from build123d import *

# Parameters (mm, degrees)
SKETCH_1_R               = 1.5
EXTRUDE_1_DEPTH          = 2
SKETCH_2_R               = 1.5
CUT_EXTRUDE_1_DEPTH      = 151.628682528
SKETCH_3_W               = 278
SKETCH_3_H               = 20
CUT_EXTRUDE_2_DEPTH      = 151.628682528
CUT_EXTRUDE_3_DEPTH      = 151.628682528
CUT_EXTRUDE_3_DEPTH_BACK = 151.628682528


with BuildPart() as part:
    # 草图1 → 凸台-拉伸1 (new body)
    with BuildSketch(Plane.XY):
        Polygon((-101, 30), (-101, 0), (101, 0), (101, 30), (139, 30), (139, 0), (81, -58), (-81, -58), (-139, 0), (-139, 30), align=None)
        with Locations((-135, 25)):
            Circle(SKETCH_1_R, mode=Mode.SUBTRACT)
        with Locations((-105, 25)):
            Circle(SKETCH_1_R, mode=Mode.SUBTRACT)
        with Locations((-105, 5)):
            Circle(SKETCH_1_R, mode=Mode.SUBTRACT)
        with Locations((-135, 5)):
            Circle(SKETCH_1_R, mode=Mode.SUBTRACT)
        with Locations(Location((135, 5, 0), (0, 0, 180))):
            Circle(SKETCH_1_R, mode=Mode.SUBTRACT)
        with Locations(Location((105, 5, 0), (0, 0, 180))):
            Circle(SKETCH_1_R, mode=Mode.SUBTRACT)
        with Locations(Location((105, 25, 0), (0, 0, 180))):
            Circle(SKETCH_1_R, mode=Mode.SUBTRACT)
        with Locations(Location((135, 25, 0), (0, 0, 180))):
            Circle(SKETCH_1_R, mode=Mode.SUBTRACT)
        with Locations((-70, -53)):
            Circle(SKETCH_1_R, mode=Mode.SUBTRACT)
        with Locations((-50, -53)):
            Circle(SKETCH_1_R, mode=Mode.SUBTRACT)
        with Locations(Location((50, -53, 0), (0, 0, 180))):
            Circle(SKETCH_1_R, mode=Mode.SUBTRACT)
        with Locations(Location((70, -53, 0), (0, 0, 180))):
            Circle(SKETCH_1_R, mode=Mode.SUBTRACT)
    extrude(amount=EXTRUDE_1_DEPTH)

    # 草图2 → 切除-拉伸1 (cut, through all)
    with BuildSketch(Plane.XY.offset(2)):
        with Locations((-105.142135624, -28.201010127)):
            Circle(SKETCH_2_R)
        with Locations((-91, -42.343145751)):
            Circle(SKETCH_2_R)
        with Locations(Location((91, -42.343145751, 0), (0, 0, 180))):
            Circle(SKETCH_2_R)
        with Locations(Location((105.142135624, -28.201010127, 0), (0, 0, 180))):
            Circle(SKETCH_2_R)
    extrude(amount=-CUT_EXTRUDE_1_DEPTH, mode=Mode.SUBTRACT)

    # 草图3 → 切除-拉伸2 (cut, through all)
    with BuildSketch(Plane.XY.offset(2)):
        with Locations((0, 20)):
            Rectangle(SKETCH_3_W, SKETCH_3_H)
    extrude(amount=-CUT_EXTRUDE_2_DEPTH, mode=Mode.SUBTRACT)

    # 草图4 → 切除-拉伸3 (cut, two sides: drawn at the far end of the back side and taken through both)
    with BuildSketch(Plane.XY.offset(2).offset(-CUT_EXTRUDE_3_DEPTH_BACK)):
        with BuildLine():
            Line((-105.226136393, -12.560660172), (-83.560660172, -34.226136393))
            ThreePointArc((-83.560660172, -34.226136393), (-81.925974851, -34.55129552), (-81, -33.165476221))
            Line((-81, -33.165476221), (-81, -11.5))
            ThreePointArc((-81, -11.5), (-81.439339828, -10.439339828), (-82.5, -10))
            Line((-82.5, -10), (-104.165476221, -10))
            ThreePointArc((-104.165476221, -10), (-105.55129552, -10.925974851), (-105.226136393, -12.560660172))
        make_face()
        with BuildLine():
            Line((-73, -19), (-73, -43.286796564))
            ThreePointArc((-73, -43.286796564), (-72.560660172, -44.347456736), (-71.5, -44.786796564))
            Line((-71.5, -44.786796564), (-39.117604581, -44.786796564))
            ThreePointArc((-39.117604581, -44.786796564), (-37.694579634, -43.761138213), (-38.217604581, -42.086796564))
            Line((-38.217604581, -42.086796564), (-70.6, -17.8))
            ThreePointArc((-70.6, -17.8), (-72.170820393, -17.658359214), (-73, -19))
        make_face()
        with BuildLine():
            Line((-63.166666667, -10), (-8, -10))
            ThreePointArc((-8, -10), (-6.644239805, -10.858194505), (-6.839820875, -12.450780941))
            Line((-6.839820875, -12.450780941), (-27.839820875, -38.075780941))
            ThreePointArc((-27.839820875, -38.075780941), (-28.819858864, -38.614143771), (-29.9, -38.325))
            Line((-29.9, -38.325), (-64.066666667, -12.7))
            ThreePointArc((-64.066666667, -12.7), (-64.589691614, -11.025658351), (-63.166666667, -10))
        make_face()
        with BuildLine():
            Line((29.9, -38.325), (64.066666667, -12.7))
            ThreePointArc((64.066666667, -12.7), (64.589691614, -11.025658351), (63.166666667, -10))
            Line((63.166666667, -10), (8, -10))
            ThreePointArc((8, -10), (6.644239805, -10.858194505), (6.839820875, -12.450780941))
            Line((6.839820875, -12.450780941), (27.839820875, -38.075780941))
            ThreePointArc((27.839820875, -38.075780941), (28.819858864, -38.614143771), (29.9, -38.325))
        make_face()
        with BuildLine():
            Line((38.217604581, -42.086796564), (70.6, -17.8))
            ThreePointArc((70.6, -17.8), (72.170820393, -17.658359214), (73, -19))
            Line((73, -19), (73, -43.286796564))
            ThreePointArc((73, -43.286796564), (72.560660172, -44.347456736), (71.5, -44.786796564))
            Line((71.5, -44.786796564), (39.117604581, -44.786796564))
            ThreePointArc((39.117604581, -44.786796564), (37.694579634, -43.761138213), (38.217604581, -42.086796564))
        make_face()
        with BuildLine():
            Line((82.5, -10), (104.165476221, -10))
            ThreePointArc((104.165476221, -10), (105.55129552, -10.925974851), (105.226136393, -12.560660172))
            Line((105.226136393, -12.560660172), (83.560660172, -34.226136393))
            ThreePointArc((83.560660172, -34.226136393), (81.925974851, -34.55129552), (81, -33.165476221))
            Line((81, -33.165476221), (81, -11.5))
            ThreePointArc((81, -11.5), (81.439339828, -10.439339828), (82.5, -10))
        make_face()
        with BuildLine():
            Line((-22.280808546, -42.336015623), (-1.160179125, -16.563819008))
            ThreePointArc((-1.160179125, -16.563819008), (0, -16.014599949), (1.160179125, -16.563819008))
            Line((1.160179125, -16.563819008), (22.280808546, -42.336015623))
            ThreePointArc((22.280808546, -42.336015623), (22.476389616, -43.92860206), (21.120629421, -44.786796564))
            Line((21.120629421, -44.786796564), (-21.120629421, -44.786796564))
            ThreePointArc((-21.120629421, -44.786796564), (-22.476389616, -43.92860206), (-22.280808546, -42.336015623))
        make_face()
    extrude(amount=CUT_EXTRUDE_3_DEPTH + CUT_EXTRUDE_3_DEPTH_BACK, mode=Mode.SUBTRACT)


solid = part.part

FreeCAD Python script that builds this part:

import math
import FreeCAD as App
import Part
import Sketcher
from FreeCAD import Vector

doc = App.newDocument("Part")
body = doc.addObject("PartDesign::Body", "Body")

# Sketch on XY plane
sketch1 = body.newObject("Sketcher::SketchObject", "Sketch")
sketch1.AttachmentSupport = (doc.getObject("XY_Plane"), [""])
sketch1.MapMode = "FlatFace"
sketch1.addGeometry([
    Part.LineSegment(Vector(-101, 0, 0), Vector(-101, 30, 0)),  # 0
    Part.LineSegment(Vector(-101, 30, 0), Vector(-139, 30, 0)),  # 1
    Part.LineSegment(Vector(-139, 30, 0), Vector(-139, 0, 0)),  # 2
    Part.LineSegment(Vector(-139, 0, 0), Vector(-81, -58, 0)),  # 3
    Part.LineSegment(Vector(-81, -58, 0), Vector(81, -58, 0)),  # 4
    Part.LineSegment(Vector(81, -58, 0), Vector(139, 0, 0)),  # 5
    Part.LineSegment(Vector(139, 0, 0), Vector(139, 30, 0)),  # 6
    Part.LineSegment(Vector(139, 30, 0), Vector(101, 30, 0)),  # 7
    Part.LineSegment(Vector(101, 30, 0), Vector(101, 0, 0)),  # 8
    Part.LineSegment(Vector(101, 0, 0), Vector(-101, 0, 0)),  # 9
    Part.Circle(Vector(70, -53, 0), Vector(0, 0, 1), 1.5),  # 10
    Part.Circle(Vector(50, -53, 0), Vector(0, 0, 1), 1.5),  # 11
    Part.Circle(Vector(-50, -53, 0), Vector(0, 0, 1), 1.5),  # 12
    Part.Circle(Vector(-70, -53, 0), Vector(0, 0, 1), 1.5),  # 13
    Part.Circle(Vector(135, 5, 0), Vector(0, 0, 1), 1.5),  # 14
    Part.Circle(Vector(105, 5, 0), Vector(0, 0, 1), 1.5),  # 15
    Part.Circle(Vector(135, 25, 0), Vector(0, 0, 1), 1.5),  # 16
    Part.Circle(Vector(105, 25, 0), Vector(0, 0, 1), 1.5),  # 17
    Part.Circle(Vector(-105, 5, 0), Vector(0, 0, 1), 1.5),  # 18
    Part.Circle(Vector(-135, 5, 0), Vector(0, 0, 1), 1.5),  # 19
    Part.Circle(Vector(-105, 25, 0), Vector(0, 0, 1), 1.5),  # 20
    Part.Circle(Vector(-135, 25, 0), Vector(0, 0, 1), 1.5),  # 21
], False)
sketch1.addConstraint([
    Sketcher.Constraint("Coincident", 0, 2, 1, 1),
    Sketcher.Constraint("Coincident", 1, 2, 2, 1),
    Sketcher.Constraint("Coincident", 2, 2, 3, 1),
    Sketcher.Constraint("Coincident", 3, 2, 4, 1),
    Sketcher.Constraint("Coincident", 4, 2, 5, 1),
    Sketcher.Constraint("Coincident", 5, 2, 6, 1),
    Sketcher.Constraint("Coincident", 6, 2, 7, 1),
    Sketcher.Constraint("Coincident", 7, 2, 8, 1),
    Sketcher.Constraint("Coincident", 8, 2, 9, 1),
    Sketcher.Constraint("Coincident", 9, 2, 0, 1),
    Sketcher.Constraint("Vertical", 0),
    Sketcher.Constraint("Horizontal", 1),
    Sketcher.Constraint("Vertical", 2),
    Sketcher.Constraint("Horizontal", 4),
    Sketcher.Constraint("Vertical", 6),
    Sketcher.Constraint("Horizontal", 7),
    Sketcher.Constraint("Vertical", 8),
    Sketcher.Constraint("Horizontal", 9),
    Sketcher.Constraint("Equal", 10, 11),
    Sketcher.Constraint("Equal", 11, 12),
    Sketcher.Constraint("Equal", 12, 13),
    Sketcher.Constraint("Equal", 13, 14),
    Sketcher.Constraint("Equal", 14, 15),
    Sketcher.Constraint("Equal", 15, 16),
    Sketcher.Constraint("Equal", 16, 17),
    Sketcher.Constraint("Equal", 17, 18),
    Sketcher.Constraint("Equal", 18, 19),
    Sketcher.Constraint("Equal", 19, 20),
    Sketcher.Constraint("Equal", 20, 21),
    Sketcher.Constraint("Symmetric", 2, 2, 5, 2, -1, 1),
    Sketcher.Constraint("Symmetric", 8, 2, 9, 2, -1, 1),
    Sketcher.Constraint("Symmetric", 11, 3, 12, 3, -2),
    Sketcher.Constraint("Symmetric", 10, 3, 13, 3, -2),
    Sketcher.Constraint("Symmetric", 15, 3, 18, 3, -2),
    Sketcher.Constraint("Symmetric", 14, 3, 19, 3, -2),
    Sketcher.Constraint("Symmetric", 17, 3, 20, 3, -2),
    Sketcher.Constraint("Symmetric", 16, 3, 21, 3, -2),
    Sketcher.Constraint("PointOnObject", 2, 2, -1),
    Sketcher.Constraint("Perpendicular", 3, 5),
    Sketcher.Constraint("Horizontal", 10, 3, 11, 3),
    Sketcher.Constraint("Horizontal", 14, 3, 15, 3),
    Sketcher.Constraint("Horizontal", 16, 3, 17, 3),
    Sketcher.Constraint("Horizontal", 1, 2, 6, 2),
    Sketcher.Constraint("Vertical", 14, 3, 16, 3),
    Sketcher.Constraint("Vertical", 15, 3, 17, 3),
    Sketcher.Constraint("Equal", 3, 5),
    Sketcher.Constraint("Diameter", 10, 3.0),
    Sketcher.Constraint("DistanceX", 1, 2, 1, 1, 38.0),
    Sketcher.Constraint("DistanceX", 4, 1, 4, 2, 162.0),
    Sketcher.Constraint("DistanceX", 9, 2, 9, 1, 202.0),
    Sketcher.Constraint("DistanceY", 0, 1, 0, 2, 30.0),
    Sketcher.Constraint("DistanceX", -1, 1, 10, 3, 70.0),
    Sketcher.Constraint("DistanceY", 10, 3, -1, 1, 53.0),
    Sketcher.Constraint("DistanceX", -1, 1, 11, 3, 50.0),
    Sketcher.Constraint("DistanceX", -1, 1, 14, 3, 135.0),
    Sketcher.Constraint("DistanceY", -1, 1, 14, 3, 5.0),
    Sketcher.Constraint("DistanceX", -1, 1, 15, 3, 105.0),
    Sketcher.Constraint("DistanceY", -1, 1, 16, 3, 25.0),
])
pad1 = body.newObject("PartDesign::Pad", "Pad")
pad1.Profile = sketch1
pad1.Length = 2

# Sketch on XY plane
sketch2 = body.newObject("Sketcher::SketchObject", "Sketch001")
sketch2.AttachmentSupport = (doc.getObject("XY_Plane"), [""])
sketch2.MapMode = "FlatFace"
sketch2.AttachmentOffset = App.Placement(Vector(0, 0, 2), App.Rotation())
sketch2.addGeometry([
    Part.Circle(Vector(-105.1, -28.2, 0), Vector(0, 0, 1), 1.5),
    Part.Circle(Vector(-91, -42.3, 0), Vector(0, 0, 1), 1.5),
    Part.Circle(Vector(91, -42.3, 0), Vector(0, 0, 1), 1.5),
    Part.Circle(Vector(105.1, -28.2, 0), Vector(0, 0, 1), 1.5),
], False)
sketch2.addConstraint([
    Sketcher.Constraint("Equal", 0, 1),
    Sketcher.Constraint("Equal", 1, 2),
    Sketcher.Constraint("Equal", 2, 3),
    Sketcher.Constraint("Symmetric", 1, 3, 2, 3, -2),
    Sketcher.Constraint("Symmetric", 0, 3, 3, 3, -2),
    Sketcher.Constraint("Diameter", 0, 3.0),
    Sketcher.Constraint("DistanceX", 1, 3, -1, 1, 91.0),
    Sketcher.Constraint("DistanceY", 0, 3, -1, 1, 28.20101),
    Sketcher.Constraint("DistanceX", 0, 3, 3, 3, 210.284271),
    Sketcher.Constraint("DistanceY", 1, 3, -1, 1, 42.343146),
])
pocket1 = body.newObject("PartDesign::Pocket", "Pocket")
pocket1.Profile = sketch2
pocket1.Type = "ThroughAll"

# Sketch on XY plane
sketch3 = body.newObject("Sketcher::SketchObject", "Sketch002")
sketch3.AttachmentSupport = (doc.getObject("XY_Plane"), [""])
sketch3.MapMode = "FlatFace"
sketch3.AttachmentOffset = App.Placement(Vector(0, 0, 2), App.Rotation())
sketch3.addGeometry([
    Part.LineSegment(Vector(-139, 30, 0), Vector(-139, 10, 0)),
    Part.LineSegment(Vector(-139, 10, 0), Vector(139, 10, 0)),
    Part.LineSegment(Vector(139, 10, 0), Vector(139, 30, 0)),
    Part.LineSegment(Vector(139, 30, 0), Vector(-139, 30, 0)),
], False)
sketch3.addConstraint([
    Sketcher.Constraint("Coincident", 0, 2, 1, 1),
    Sketcher.Constraint("Coincident", 1, 2, 2, 1),
    Sketcher.Constraint("Coincident", 2, 2, 3, 1),
    Sketcher.Constraint("Coincident", 3, 2, 0, 1),
    Sketcher.Constraint("Vertical", 0),
    Sketcher.Constraint("Horizontal", 1),
    Sketcher.Constraint("Vertical", 2),
    Sketcher.Constraint("Horizontal", 3),
    Sketcher.Constraint("DistanceX", 1, 1, 1, 2, 278.0),
    Sketcher.Constraint("DistanceY", 0, 2, 0, 1, 20.0),
    Sketcher.Constraint("DistanceX", 0, 2, -1, 1, 139.0),
    Sketcher.Constraint("DistanceY", -1, 1, 0, 2, 10.0),
])
pocket2 = body.newObject("PartDesign::Pocket", "Pocket001")
pocket2.Profile = sketch3
pocket2.Type = "ThroughAll"

# Sketch on XY plane
sketch4 = body.newObject("Sketcher::SketchObject", "Sketch003")
sketch4.AttachmentSupport = (doc.getObject("XY_Plane"), [""])
sketch4.MapMode = "FlatFace"
sketch4.AttachmentOffset = App.Placement(Vector(0, 0, 2), App.Rotation())
sketch4.addGeometry([
    Part.LineSegment(Vector(-105.2, -12.6, 0), Vector(-83.6, -34.2, 0)),  # 0
    Part.ArcOfCircle(Part.Circle(Vector(-82.5, -33.2, 0), Vector(0, 0, 1), 1.5), math.radians(-135), math.radians(0)),  # 1
    Part.LineSegment(Vector(-81, -33.2, 0), Vector(-81, -11.5, 0)),  # 2
    Part.ArcOfCircle(Part.Circle(Vector(-82.5, -11.5, 0), Vector(0, 0, 1), 1.5), math.radians(0), math.radians(90)),  # 3
    Part.LineSegment(Vector(-82.5, -10, 0), Vector(-104.2, -10, 0)),  # 4
    Part.ArcOfCircle(Part.Circle(Vector(-104.2, -11.5, 0), Vector(0, 0, 1), 1.5), math.radians(90), math.radians(225)),  # 5
    Part.LineSegment(Vector(-73, -19, 0), Vector(-73, -43.3, 0)),  # 6
    Part.ArcOfCircle(Part.Circle(Vector(-71.5, -43.3, 0), Vector(0, 0, 1), 1.5), math.radians(180), math.radians(270)),  # 7
    Part.LineSegment(Vector(-71.5, -44.8, 0), Vector(-39.1, -44.8, 0)),  # 8
    Part.ArcOfCircle(Part.Circle(Vector(-39.1, -43.3, 0), Vector(0, 0, 1), 1.5), math.radians(-90), math.radians(53)),  # 9
    Part.LineSegment(Vector(-38.2, -42.1, 0), Vector(-70.6, -17.8, 0)),  # 10
    Part.ArcOfCircle(Part.Circle(Vector(-71.5, -19, 0), Vector(0, 0, 1), 1.5), math.radians(53), math.radians(180)),  # 11
    Part.LineSegment(Vector(-8, -10, 0), Vector(-63.2, -10, 0)),  # 12
    Part.ArcOfCircle(Part.Circle(Vector(-63.2, -11.5, 0), Vector(0, 0, 1), 1.5), math.radians(90), math.radians(233)),  # 13
    Part.LineSegment(Vector(-64.1, -12.7, 0), Vector(-29.9, -38.3, 0)),  # 14
    Part.ArcOfCircle(Part.Circle(Vector(-29, -37.1, 0), Vector(0, 0, 1), 1.5), math.radians(-127), math.radians(-39)),  # 15
    Part.LineSegment(Vector(-27.8, -38.1, 0), Vector(-6.8, -12.5, 0)),  # 16
    Part.ArcOfCircle(Part.Circle(Vector(-8, -11.5, 0), Vector(0, 0, 1), 1.5), math.radians(-39), math.radians(90)),  # 17
    Part.LineSegment(Vector(29.9, -38.3, 0), Vector(64.1, -12.7, 0)),  # 18
    Part.ArcOfCircle(Part.Circle(Vector(63.2, -11.5, 0), Vector(0, 0, 1), 1.5), math.radians(-53), math.radians(90)),  # 19
    Part.LineSegment(Vector(63.2, -10, 0), Vector(8, -10, 0)),  # 20
    Part.ArcOfCircle(Part.Circle(Vector(8, -11.5, 0), Vector(0, 0, 1), 1.5), math.radians(90), math.radians(219)),  # 21
    Part.LineSegment(Vector(6.8, -12.5, 0), Vector(27.8, -38.1, 0)),  # 22
    Part.ArcOfCircle(Part.Circle(Vector(29, -37.1, 0), Vector(0, 0, 1), 1.5), math.radians(-141), math.radians(-53)),  # 23
    Part.LineSegment(Vector(70.6, -17.8, 0), Vector(38.2, -42.1, 0)),  # 24
    Part.ArcOfCircle(Part.Circle(Vector(39.1, -43.3, 0), Vector(0, 0, 1), 1.5), math.radians(127), math.radians(270)),  # 25
    Part.LineSegment(Vector(39.1, -44.8, 0), Vector(71.5, -44.8, 0)),  # 26
    Part.ArcOfCircle(Part.Circle(Vector(71.5, -43.3, 0), Vector(0, 0, 1), 1.5), math.radians(-90), math.radians(0)),  # 27
    Part.LineSegment(Vector(73, -43.3, 0), Vector(73, -19, 0)),  # 28
    Part.ArcOfCircle(Part.Circle(Vector(71.5, -19, 0), Vector(0, 0, 1), 1.5), math.radians(0), math.radians(127)),  # 29
    Part.LineSegment(Vector(104.2, -10, 0), Vector(82.5, -10, 0)),  # 30
    Part.ArcOfCircle(Part.Circle(Vector(82.5, -11.5, 0), Vector(0, 0, 1), 1.5), math.radians(90), math.radians(180)),  # 31
    Part.LineSegment(Vector(81, -11.5, 0), Vector(81, -33.2, 0)),  # 32
    Part.ArcOfCircle(Part.Circle(Vector(82.5, -33.2, 0), Vector(0, 0, 1), 1.5), math.radians(180), math.radians(315)),  # 33
    Part.LineSegment(Vector(83.6, -34.2, 0), Vector(105.2, -12.6, 0)),  # 34
    Part.ArcOfCircle(Part.Circle(Vector(104.2, -11.5, 0), Vector(0, 0, 1), 1.5), math.radians(-45), math.radians(90)),  # 35
    Part.LineSegment(Vector(-1.2, -16.6, 0), Vector(-22.3, -42.3, 0)),  # 36
    Part.ArcOfCircle(Part.Circle(Vector(-21.1, -43.3, 0), Vector(0, 0, 1), 1.5), math.radians(141), math.radians(270)),  # 37
    Part.LineSegment(Vector(-21.1, -44.8, 0), Vector(21.1, -44.8, 0)),  # 38
    Part.ArcOfCircle(Part.Circle(Vector(21.1, -43.3, 0), Vector(0, 0, 1), 1.5), math.radians(-90), math.radians(39)),  # 39
    Part.LineSegment(Vector(22.3, -42.3, 0), Vector(1.2, -16.6, 0)),  # 40
    Part.ArcOfCircle(Part.Circle(Vector(0, -17.5, 0), Vector(0, 0, 1), 1.5), math.radians(39), math.radians(141)),  # 41
], False)
sketch4.addConstraint([
    Sketcher.Constraint("Tangent", 0, 2, 1, 1),
    Sketcher.Constraint("Tangent", 1, 2, 2, 1),
    Sketcher.Constraint("Tangent", 2, 2, 3, 1),
    Sketcher.Constraint("Tangent", 3, 2, 4, 1),
    Sketcher.Constraint("Tangent", 4, 2, 5, 1),
    Sketcher.Constraint("Tangent", 5, 2, 0, 1),
    Sketcher.Constraint("Tangent", 6, 2, 7, 1),
    Sketcher.Constraint("Tangent", 7, 2, 8, 1),
    Sketcher.Constraint("Tangent", 8, 2, 9, 1),
    Sketcher.Constraint("Tangent", 9, 2, 10, 1),
    Sketcher.Constraint("Tangent", 10, 2, 11, 1),
    Sketcher.Constraint("Tangent", 11, 2, 6, 1),
    Sketcher.Constraint("Tangent", 12, 2, 13, 1),
    Sketcher.Constraint("Tangent", 13, 2, 14, 1),
    Sketcher.Constraint("Tangent", 14, 2, 15, 1),
    Sketcher.Constraint("Tangent", 15, 2, 16, 1),
    Sketcher.Constraint("Tangent", 16, 2, 17, 1),
    Sketcher.Constraint("Tangent", 17, 2, 12, 1),
    Sketcher.Constraint("Tangent", 18, 2, 19, 1),
    Sketcher.Constraint("Tangent", 19, 2, 20, 1),
    Sketcher.Constraint("Tangent", 20, 2, 21, 1),
    Sketcher.Constraint("Tangent", 21, 2, 22, 1),
    Sketcher.Constraint("Tangent", 22, 2, 23, 1),
    Sketcher.Constraint("Tangent", 23, 2, 18, 1),
    Sketcher.Constraint("Tangent", 24, 2, 25, 1),
    Sketcher.Constraint("Tangent", 25, 2, 26, 1),
    Sketcher.Constraint("Tangent", 26, 2, 27, 1),
    Sketcher.Constraint("Tangent", 27, 2, 28, 1),
    Sketcher.Constraint("Tangent", 28, 2, 29, 1),
    Sketcher.Constraint("Tangent", 29, 2, 24, 1),
    Sketcher.Constraint("Tangent", 30, 2, 31, 1),
    Sketcher.Constraint("Tangent", 31, 2, 32, 1),
    Sketcher.Constraint("Tangent", 32, 2, 33, 1),
    Sketcher.Constraint("Tangent", 33, 2, 34, 1),
    Sketcher.Constraint("Tangent", 34, 2, 35, 1),
    Sketcher.Constraint("Tangent", 35, 2, 30, 1),
    Sketcher.Constraint("Tangent", 36, 2, 37, 1),
    Sketcher.Constraint("Tangent", 37, 2, 38, 1),
    Sketcher.Constraint("Tangent", 38, 2, 39, 1),
    Sketcher.Constraint("Tangent", 39, 2, 40, 1),
    Sketcher.Constraint("Tangent", 40, 2, 41, 1),
    Sketcher.Constraint("Tangent", 41, 2, 36, 1),
    Sketcher.Constraint("Vertical", 2),
    Sketcher.Constraint("Horizontal", 4),
    Sketcher.Constraint("Vertical", 6),
    Sketcher.Constraint("Horizontal", 8),
    Sketcher.Constraint("Horizontal", 12),
    Sketcher.Constraint("Horizontal", 20),
    Sketcher.Constraint("Horizontal", 26),
    Sketcher.Constraint("Vertical", 28),
    Sketcher.Constraint("Horizontal", 30),
    Sketcher.Constraint("Vertical", 32),
    Sketcher.Constraint("Horizontal", 38),
    Sketcher.Constraint("Equal", 1, 3),
    Sketcher.Constraint("Equal", 3, 5),
    Sketcher.Constraint("Equal", 5, 7),
    Sketcher.Constraint("Equal", 7, 9),
    Sketcher.Constraint("Equal", 9, 11),
    Sketcher.Constraint("Equal", 11, 13),
    Sketcher.Constraint("Equal", 13, 15),
    Sketcher.Constraint("Equal", 15, 17),
    Sketcher.Constraint("Equal", 17, 19),
    Sketcher.Constraint("Equal", 19, 21),
    Sketcher.Constraint("Equal", 21, 23),
    Sketcher.Constraint("Equal", 23, 25),
    Sketcher.Constraint("Equal", 25, 27),
    Sketcher.Constraint("Equal", 27, 29),
    Sketcher.Constraint("Equal", 29, 31),
    Sketcher.Constraint("Equal", 31, 33),
    Sketcher.Constraint("Equal", 33, 35),
    Sketcher.Constraint("Equal", 35, 37),
    Sketcher.Constraint("Equal", 37, 39),
    Sketcher.Constraint("Equal", 39, 41),
    Sketcher.Constraint("Symmetric", 13, 3, 19, 3, -2),
    Sketcher.Constraint("Symmetric", 15, 3, 23, 3, -2),
    Sketcher.Constraint("Symmetric", 9, 3, 25, 3, -2),
    Sketcher.Constraint("Symmetric", 11, 3, 29, 3, -2),
    Sketcher.Constraint("Symmetric", 3, 3, 31, 3, -2),
    Sketcher.Constraint("Symmetric", 0, 2, 33, 2, -2),
    Sketcher.Constraint("Symmetric", 36, 2, 39, 2, -2),
    Sketcher.Constraint("Parallel", 10, 14),
    Sketcher.Constraint("Perpendicular", 0, 34),
    Sketcher.Constraint("Parallel", 16, 36),
    Sketcher.Constraint("Parallel", 22, 40),
    Sketcher.Constraint("Horizontal", 5, 3, 13, 3),
    Sketcher.Constraint("Horizontal", 27, 3, 37, 3),
    Sketcher.Constraint("Radius", 1, 1.5),
    Sketcher.Constraint("DistanceY", 11, 3, -1, 1, 19.0),
    Sketcher.Constraint("DistanceX", 15, 3, -1, 1, 29.0),
    Sketcher.Constraint("DistanceX", 17, 3, -1, 1, 8.0),
    Sketcher.Constraint("DistanceX", 1, 2, -1, 1, 81.0),
    Sketcher.Constraint("DistanceY", 3, 2, -1, 1, 10.0),
    Sketcher.Constraint("DistanceX", 6, 2, -1, 1, 73.0),
    Sketcher.Constraint("DistanceX", 10, 2, -1, 1, 70.6),
    Sketcher.Constraint("DistanceY", 15, 3, -1, 1, 37.125),
    Sketcher.Constraint("DistanceX", 38, 1, 38, 2, 42.241259),
    Sketcher.Constraint("DistanceY", 41, 3, -1, 1, 17.5146),
    Sketcher.Constraint("Distance", 0, 30.63961),
])
pocket3 = body.newObject("PartDesign::Pocket", "Pocket002")
pocket3.Profile = sketch4
pocket3.Type = "ThroughAll"
pocket3.Midplane = True

doc.recompute()
